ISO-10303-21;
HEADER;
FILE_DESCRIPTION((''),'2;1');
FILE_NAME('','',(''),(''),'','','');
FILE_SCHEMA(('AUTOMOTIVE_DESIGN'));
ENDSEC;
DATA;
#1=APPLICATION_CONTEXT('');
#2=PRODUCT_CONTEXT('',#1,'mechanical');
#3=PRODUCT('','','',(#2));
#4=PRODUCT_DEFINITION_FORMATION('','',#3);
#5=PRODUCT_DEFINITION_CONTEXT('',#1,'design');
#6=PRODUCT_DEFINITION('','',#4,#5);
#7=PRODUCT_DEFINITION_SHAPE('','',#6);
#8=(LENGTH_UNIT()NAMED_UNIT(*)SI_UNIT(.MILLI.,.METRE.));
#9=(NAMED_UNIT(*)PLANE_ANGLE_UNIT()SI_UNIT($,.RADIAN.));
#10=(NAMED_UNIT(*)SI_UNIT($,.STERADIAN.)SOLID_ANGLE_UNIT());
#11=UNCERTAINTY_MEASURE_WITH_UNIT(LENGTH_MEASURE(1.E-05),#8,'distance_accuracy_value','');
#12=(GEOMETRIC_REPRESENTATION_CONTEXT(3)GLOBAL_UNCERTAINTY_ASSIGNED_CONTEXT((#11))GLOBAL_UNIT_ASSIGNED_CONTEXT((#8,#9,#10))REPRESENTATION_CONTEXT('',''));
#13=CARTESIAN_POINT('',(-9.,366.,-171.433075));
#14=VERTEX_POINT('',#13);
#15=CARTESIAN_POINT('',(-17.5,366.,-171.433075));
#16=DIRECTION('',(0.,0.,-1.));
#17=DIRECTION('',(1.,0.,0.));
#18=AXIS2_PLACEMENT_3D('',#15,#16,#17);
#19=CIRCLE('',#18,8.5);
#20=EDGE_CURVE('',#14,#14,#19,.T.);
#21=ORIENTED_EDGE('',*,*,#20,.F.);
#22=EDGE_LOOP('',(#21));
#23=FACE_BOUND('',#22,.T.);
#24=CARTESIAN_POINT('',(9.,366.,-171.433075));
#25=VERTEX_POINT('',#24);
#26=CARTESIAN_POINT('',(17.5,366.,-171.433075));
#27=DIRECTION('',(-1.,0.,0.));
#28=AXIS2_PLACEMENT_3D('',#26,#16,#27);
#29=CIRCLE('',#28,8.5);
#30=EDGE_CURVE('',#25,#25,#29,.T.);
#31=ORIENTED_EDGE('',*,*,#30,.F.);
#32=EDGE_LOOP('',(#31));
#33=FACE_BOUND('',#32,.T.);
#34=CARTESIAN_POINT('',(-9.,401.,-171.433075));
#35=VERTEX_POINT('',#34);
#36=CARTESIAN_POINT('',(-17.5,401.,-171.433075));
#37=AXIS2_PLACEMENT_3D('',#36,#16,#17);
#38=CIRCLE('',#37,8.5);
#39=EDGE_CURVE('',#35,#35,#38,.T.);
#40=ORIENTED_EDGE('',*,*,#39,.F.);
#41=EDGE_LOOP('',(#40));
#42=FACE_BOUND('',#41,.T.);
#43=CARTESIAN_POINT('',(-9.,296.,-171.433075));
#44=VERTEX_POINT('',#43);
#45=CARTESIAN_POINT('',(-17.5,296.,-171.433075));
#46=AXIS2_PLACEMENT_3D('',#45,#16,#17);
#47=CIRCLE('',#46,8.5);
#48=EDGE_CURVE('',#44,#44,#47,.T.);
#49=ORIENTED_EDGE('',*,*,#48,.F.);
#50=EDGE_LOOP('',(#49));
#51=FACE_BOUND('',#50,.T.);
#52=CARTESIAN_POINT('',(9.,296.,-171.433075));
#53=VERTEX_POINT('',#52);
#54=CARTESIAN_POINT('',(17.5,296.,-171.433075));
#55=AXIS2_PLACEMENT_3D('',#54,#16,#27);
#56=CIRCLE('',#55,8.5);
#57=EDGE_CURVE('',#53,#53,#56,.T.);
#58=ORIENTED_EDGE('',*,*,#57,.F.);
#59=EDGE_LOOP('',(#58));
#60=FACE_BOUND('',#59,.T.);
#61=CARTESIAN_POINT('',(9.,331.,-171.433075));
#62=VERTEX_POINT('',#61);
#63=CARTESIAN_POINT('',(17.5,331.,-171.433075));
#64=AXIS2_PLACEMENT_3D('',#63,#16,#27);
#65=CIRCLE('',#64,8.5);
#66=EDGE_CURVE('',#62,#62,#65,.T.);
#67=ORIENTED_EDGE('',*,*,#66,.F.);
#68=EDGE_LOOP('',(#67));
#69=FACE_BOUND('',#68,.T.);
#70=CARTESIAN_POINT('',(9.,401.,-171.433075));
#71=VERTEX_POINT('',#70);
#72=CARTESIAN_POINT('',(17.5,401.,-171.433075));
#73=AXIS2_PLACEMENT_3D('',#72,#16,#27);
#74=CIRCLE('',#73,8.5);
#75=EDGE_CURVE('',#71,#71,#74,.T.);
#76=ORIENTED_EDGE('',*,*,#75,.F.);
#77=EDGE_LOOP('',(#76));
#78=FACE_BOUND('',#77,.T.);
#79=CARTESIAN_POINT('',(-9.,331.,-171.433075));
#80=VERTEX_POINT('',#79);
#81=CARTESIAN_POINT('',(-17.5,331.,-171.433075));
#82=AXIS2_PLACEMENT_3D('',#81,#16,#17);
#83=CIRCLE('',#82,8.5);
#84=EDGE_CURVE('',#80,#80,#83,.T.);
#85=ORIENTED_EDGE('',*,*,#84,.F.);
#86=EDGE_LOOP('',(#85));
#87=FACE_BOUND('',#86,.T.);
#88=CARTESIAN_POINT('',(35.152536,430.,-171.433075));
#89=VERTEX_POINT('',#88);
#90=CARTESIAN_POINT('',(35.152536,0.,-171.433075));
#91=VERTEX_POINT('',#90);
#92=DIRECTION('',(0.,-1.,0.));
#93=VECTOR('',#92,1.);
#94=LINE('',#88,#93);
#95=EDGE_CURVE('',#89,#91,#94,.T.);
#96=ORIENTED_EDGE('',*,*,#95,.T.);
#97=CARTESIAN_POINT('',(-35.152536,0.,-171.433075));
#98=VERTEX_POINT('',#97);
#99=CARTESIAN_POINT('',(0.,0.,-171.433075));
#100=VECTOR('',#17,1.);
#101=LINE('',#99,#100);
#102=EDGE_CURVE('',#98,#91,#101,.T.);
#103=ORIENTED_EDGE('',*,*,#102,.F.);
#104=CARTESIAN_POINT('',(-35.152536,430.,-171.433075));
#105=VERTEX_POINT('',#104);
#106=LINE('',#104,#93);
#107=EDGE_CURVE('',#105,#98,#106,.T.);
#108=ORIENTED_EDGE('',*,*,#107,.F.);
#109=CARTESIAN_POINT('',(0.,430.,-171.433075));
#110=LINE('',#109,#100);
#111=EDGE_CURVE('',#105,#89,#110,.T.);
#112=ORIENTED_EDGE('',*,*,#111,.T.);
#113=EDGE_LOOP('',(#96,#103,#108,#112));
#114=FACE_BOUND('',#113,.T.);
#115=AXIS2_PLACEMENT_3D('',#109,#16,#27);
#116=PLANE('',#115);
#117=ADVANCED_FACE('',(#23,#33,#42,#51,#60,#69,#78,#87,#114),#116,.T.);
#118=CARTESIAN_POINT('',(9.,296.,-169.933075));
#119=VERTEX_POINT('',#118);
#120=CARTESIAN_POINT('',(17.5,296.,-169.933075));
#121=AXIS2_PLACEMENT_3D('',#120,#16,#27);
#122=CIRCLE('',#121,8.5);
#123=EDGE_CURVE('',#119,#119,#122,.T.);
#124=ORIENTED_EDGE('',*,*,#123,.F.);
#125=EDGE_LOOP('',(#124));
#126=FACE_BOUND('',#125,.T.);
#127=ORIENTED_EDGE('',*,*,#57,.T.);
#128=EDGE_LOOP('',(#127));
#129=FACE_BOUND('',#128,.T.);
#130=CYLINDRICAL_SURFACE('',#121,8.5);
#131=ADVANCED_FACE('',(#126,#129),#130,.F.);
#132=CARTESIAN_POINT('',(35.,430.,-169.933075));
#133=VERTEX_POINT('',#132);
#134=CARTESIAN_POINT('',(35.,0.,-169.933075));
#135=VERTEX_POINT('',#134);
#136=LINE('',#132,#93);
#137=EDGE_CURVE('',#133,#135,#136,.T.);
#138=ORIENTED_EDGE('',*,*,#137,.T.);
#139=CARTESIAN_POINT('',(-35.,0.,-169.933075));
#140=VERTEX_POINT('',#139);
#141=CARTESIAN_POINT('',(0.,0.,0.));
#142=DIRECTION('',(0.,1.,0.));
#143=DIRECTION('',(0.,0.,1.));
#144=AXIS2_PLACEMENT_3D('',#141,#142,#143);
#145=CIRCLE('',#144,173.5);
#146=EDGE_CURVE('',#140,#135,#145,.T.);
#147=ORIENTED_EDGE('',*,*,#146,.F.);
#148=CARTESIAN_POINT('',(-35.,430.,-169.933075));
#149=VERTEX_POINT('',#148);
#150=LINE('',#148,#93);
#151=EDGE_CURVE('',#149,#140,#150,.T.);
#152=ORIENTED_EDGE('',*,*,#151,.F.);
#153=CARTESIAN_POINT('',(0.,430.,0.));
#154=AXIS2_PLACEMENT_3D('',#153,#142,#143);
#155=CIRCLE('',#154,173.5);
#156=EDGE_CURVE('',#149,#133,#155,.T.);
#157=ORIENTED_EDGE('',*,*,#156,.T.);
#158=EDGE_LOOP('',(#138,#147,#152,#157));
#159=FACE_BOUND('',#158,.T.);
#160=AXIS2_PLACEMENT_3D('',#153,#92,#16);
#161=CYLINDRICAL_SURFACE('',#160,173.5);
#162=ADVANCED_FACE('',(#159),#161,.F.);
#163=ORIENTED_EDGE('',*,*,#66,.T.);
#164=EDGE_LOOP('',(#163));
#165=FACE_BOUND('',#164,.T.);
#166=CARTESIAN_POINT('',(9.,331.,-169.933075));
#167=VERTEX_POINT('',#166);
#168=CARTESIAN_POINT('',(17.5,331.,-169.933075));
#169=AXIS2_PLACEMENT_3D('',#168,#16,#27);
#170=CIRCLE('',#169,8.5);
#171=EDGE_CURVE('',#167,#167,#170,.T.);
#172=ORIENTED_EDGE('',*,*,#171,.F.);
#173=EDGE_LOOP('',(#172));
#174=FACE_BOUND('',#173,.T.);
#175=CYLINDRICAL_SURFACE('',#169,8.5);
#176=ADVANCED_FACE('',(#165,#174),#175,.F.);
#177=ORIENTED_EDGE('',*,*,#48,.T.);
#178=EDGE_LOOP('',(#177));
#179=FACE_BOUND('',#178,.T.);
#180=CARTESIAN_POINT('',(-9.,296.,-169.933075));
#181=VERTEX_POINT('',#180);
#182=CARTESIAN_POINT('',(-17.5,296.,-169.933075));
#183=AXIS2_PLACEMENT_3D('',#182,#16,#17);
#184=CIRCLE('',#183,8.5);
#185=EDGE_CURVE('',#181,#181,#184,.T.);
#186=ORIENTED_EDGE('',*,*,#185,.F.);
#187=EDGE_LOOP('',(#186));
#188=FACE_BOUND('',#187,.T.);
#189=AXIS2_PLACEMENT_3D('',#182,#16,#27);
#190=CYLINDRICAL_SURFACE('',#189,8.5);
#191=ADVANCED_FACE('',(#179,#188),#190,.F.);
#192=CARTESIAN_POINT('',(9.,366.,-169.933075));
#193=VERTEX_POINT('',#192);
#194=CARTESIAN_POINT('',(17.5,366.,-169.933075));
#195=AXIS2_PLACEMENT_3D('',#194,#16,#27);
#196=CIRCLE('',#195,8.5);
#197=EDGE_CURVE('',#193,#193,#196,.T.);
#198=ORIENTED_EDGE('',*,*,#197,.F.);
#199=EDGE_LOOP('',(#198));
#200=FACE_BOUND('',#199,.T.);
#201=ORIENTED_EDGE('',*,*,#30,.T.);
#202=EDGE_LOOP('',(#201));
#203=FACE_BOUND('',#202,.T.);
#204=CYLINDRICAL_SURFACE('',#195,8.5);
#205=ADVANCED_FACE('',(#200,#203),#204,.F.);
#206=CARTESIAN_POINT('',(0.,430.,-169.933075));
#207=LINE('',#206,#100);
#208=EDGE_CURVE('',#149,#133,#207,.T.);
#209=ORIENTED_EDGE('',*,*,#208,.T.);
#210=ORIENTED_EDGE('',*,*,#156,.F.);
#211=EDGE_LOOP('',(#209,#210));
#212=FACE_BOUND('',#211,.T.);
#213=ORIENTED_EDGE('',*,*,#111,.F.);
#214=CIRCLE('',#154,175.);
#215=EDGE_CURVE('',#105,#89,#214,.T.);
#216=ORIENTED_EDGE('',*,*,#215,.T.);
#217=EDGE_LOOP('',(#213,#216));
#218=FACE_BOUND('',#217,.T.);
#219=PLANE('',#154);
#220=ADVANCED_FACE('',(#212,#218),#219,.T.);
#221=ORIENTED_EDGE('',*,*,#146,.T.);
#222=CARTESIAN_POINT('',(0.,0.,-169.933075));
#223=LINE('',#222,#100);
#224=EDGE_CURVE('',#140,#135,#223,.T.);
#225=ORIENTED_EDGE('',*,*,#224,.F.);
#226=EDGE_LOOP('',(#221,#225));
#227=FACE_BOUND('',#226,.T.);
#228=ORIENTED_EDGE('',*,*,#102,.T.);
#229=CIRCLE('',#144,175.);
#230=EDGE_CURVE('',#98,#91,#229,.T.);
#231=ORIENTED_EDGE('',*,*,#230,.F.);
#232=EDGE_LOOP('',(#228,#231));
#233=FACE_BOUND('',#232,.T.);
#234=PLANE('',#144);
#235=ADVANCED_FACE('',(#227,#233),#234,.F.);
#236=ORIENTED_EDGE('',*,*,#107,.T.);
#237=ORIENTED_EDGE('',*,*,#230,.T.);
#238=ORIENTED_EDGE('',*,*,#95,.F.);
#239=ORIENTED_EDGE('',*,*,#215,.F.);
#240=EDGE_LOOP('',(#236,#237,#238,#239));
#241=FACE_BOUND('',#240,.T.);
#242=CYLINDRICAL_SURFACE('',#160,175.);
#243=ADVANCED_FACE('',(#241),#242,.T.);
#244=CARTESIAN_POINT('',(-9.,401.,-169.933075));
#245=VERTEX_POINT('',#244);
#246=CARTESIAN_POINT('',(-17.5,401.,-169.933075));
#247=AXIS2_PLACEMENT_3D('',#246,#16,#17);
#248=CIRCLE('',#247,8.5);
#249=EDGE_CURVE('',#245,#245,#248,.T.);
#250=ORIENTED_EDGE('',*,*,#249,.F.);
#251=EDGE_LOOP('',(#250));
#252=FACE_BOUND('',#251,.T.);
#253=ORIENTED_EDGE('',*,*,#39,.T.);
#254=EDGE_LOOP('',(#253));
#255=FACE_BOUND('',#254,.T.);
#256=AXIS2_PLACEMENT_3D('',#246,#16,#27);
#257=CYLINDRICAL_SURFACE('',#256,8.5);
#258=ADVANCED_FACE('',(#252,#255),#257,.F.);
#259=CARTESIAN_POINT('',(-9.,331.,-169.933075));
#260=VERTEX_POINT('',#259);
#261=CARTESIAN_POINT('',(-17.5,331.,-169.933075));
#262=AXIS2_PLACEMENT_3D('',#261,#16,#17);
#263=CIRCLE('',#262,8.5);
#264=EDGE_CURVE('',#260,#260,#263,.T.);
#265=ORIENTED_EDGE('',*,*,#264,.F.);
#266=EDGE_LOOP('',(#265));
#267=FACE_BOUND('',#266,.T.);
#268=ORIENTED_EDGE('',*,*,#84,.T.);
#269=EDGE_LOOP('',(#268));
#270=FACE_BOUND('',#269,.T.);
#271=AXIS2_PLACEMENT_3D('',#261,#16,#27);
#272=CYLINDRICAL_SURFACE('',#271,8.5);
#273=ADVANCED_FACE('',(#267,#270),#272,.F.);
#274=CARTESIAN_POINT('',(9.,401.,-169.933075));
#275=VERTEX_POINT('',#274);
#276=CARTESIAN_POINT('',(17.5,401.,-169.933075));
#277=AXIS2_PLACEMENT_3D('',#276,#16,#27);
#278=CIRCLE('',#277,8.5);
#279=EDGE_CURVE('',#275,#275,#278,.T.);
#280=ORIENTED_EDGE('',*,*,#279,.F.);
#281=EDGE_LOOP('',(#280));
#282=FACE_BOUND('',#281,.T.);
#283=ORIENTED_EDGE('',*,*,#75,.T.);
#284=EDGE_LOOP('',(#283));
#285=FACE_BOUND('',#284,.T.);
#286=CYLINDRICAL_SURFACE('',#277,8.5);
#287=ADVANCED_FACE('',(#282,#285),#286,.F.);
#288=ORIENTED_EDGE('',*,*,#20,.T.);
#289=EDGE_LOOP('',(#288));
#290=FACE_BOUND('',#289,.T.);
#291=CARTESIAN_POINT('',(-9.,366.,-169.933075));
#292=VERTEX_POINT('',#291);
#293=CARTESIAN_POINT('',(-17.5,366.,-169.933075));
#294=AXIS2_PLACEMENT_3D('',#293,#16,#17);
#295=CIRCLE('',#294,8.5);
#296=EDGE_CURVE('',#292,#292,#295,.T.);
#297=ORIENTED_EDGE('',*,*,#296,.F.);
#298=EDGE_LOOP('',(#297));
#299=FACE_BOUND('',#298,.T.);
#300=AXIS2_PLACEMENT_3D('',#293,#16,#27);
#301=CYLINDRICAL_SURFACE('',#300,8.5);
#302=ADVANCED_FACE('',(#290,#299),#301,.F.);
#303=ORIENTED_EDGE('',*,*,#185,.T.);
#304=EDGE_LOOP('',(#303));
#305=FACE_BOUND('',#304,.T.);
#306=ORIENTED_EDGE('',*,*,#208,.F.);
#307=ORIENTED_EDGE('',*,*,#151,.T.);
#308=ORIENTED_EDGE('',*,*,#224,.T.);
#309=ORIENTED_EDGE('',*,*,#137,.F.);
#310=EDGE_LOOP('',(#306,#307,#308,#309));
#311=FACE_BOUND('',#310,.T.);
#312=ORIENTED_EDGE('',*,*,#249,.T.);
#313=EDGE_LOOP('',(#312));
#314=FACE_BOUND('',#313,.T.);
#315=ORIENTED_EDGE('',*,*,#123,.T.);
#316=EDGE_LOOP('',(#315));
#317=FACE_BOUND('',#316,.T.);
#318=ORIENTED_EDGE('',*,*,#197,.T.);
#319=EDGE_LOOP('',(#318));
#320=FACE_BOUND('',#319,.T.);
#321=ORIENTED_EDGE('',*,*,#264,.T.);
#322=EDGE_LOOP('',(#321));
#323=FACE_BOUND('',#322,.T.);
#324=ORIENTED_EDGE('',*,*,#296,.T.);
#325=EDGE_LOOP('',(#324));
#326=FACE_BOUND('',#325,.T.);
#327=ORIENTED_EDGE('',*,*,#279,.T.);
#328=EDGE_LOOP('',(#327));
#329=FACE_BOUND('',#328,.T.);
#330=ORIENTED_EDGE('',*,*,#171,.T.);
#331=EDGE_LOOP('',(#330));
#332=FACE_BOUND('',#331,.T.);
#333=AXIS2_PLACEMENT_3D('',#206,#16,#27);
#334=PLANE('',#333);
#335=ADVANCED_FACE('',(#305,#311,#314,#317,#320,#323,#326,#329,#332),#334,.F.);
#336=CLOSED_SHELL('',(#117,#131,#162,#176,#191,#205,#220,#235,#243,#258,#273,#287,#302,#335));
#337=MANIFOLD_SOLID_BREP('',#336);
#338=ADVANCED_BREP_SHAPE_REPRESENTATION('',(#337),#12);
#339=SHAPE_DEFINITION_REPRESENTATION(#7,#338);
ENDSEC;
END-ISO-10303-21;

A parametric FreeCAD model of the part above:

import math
import FreeCAD as App
import Part
import Sketcher

V = App.Vector

doc = App.newDocument("Part")
body = doc.addObject("PartDesign::Body", "Body")

# Sketch on XZ plane
sketch1 = doc.addObject("Sketcher::SketchObject", "Sketch")
body.addObject(sketch1)
sketch1.AttachmentSupport = (doc.XZ_Plane, [""])
sketch1.MapMode = "FlatFace"
sketch1.addGeometry([
    Part.LineSegment(V(35.152536, -171.433075, 0), V(-35.152536, -171.433075, 0)),
    Part.ArcOfCircle(Part.Circle(V(0, 0, 0), V(0, 0, 1), 175), math.radians(-78.412066), math.radians(258.412066)),
    Part.LineSegment(V(-35, -169.933075, 0), V(35, -169.933075, 0)),
    Part.ArcOfCircle(Part.Circle(V(0, 0, 0), V(0, 0, 1), 173.5), math.radians(-78.361909), math.radians(258.361909)),
], False)
sketch1.addConstraint([
    Sketcher.Constraint("Coincident", 0, 1, 1, 1),
    Sketcher.Constraint("Coincident", 1, 2, 0, 2),
    Sketcher.Constraint("Coincident", 2, 1, 3, 2),
    Sketcher.Constraint("Coincident", 3, 1, 2, 2),
    Sketcher.Constraint("Horizontal", 0),
    Sketcher.Constraint("Horizontal", 2),
    Sketcher.Constraint("Coincident", 1, 3, -1, 1),
    Sketcher.Constraint("Coincident", 3, 3, -1, 1),
    Sketcher.Constraint("Radius", 1, 175.0),
    Sketcher.Constraint("Radius", 3, 173.5),
    Sketcher.Constraint("DistanceX", 2, 1, 2, 2, 70.0),
    Sketcher.Constraint("DistanceY", 1, 2, 2, 1, 1.5),
])
pad1 = doc.addObject("PartDesign::Pad", "Pad")
body.addObject(pad1)
pad1.Profile = sketch1
pad1.Length = 430
pad1.Reversed = True

# Sketch on XY plane
sketch2 = doc.addObject("Sketcher::SketchObject", "Sketch001")
body.addObject(sketch2)
sketch2.AttachmentSupport = (doc.XY_Plane, [""])
sketch2.MapMode = "FlatFace"
sketch2.AttachmentOffset = App.Placement(V(0, 0, -171.433075), App.Rotation())
sketch2.addGeometry([
    Part.Circle(V(17.5, 401, 0), V(0, 0, 1), 8.5),
    Part.Circle(V(-17.5, 401, 0), V(0, 0, 1), 8.5),
], False)
sketch2.addConstraint([
    Sketcher.Constraint("Equal", 0, 1),
    Sketcher.Constraint("Symmetric", 0, 3, 1, 3, -2),
    Sketcher.Constraint("Diameter", 0, 17.0),
    Sketcher.Constraint("DistanceY", -1, 1, 0, 3, 401.0),
    Sketcher.Constraint("DistanceX", 1, 3, 0, 3, 35.0),
])
pocket1 = doc.addObject("PartDesign::Pocket", "Pocket")
body.addObject(pocket1)
pocket1.Profile = sketch2
pocket1.Length = 1.5
pocket1.Reversed = True
doc.recompute()

linearpattern = doc.addObject("PartDesign::LinearPattern", "LinearPattern")
body.addObject(linearpattern)
linearpattern.Originals = [pocket1]
linearpattern.Direction = (doc.Y_Axis, [""])
linearpattern.Mode = "offset"
linearpattern.Offset = 35
linearpattern.Occurrences = 4
linearpattern.Reversed = True
body.Tip = linearpattern

doc.recompute()
